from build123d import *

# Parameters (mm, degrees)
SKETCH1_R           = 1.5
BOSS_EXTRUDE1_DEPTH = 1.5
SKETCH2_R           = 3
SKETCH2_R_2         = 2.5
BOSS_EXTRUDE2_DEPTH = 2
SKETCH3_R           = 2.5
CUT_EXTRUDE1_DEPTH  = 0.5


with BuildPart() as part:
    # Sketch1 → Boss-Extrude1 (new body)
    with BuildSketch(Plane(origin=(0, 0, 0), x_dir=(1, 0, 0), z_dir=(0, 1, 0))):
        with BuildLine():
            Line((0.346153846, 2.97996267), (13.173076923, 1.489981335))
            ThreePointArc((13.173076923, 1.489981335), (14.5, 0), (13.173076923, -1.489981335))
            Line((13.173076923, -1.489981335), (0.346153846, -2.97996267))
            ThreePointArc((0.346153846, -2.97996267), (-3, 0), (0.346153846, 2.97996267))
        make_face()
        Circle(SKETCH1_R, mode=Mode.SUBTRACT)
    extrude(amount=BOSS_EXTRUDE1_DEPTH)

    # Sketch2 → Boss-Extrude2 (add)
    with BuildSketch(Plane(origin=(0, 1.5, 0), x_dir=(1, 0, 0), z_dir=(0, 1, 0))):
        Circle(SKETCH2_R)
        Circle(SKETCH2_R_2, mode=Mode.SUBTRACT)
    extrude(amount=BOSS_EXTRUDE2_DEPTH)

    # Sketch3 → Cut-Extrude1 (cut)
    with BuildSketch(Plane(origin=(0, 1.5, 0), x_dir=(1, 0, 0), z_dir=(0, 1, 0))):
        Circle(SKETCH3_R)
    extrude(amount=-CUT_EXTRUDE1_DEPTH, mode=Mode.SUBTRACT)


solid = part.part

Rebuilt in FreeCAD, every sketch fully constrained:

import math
import FreeCAD as App
import Part
import Sketcher
from FreeCAD import Vector

doc = App.newDocument("Part")
params = doc.addObject("Spreadsheet::Sheet", "Params")
for row, (alias, value) in enumerate([
    ("sketch1_diameter", "3 mm"),
    ("sketch1_radius", "3 mm"),
    ("pad1_length", "1.5 mm"),
    ("sketch2_diameter", "6 mm"),
    ("sketch2_diameter2", "5 mm"),
    ("pad2_length", "2 mm"),
    ("sketch3_diameter", "5 mm"),
    ("pocket1_length", "0.5 mm"),
], start=1):
    params.set(f"A{row}", alias)
    params.set(f"B{row}", "=" + value)
    params.setAlias(f"B{row}", alias)

body = doc.addObject("PartDesign::Body", "Body")

# Sketch on XZ plane
sketch1 = doc.addObject("Sketcher::SketchObject", "Sketch")
body.addObject(sketch1)
sketch1.AttachmentSupport = (doc.XZ_Plane, [""])
sketch1.MapMode = "FlatFace"
sketch1.addGeometry(Part.LineSegment(Vector(13.2, -1.5, 0), Vector(0.3, -3, 0)), False)
sketch1.addGeometry(Part.ArcOfCircle(Part.Circle(Vector(0, 0, 0), Vector(0, 0, 1), 3), math.radians(83), math.radians(277)), False)
sketch1.addGeometry(Part.LineSegment(Vector(0.3, 3, 0), Vector(13.2, 1.5, 0)), False)
sketch1.addGeometry(Part.ArcOfCircle(Part.Circle(Vector(13, 0, 0), Vector(0, 0, 1), 1.5), math.radians(-83), math.radians(83)), False)
sketch1.addGeometry(Part.Circle(Vector(0, 0, 0), Vector(0, 0, 1), 1.5), False)
sketch1.addConstraint(Sketcher.Constraint("Tangent", 0, 2, 1, 2))
sketch1.addConstraint(Sketcher.Constraint("Tangent", 1, 1, 2, 1))
sketch1.addConstraint(Sketcher.Constraint("Tangent", 2, 2, 3, 2))
sketch1.addConstraint(Sketcher.Constraint("Tangent", 3, 1, 0, 1))
sketch1.addConstraint(Sketcher.Constraint("Coincident", 1, 3, -1, 1))
sketch1.addConstraint(Sketcher.Constraint("Coincident", 4, 3, -1, 1))
sketch1.addConstraint(Sketcher.Constraint("Equal", 3, 4))
sketch1.addConstraint(Sketcher.Constraint("PointOnObject", 3, 3, -1))
sketch1.addConstraint(Sketcher.Constraint("Diameter", 4, 3.0))
sketch1.addConstraint(Sketcher.Constraint("Radius", 1, 3.0))
sketch1.addConstraint(Sketcher.Constraint("DistanceX", -1, 1, 3, 3, 13.0))
sketch1.setExpression("Constraints[8]", "Params.sketch1_diameter")
sketch1.setExpression("Constraints[9]", "Params.sketch1_radius")
pad1 = doc.addObject("PartDesign::Pad", "Pad")
body.addObject(pad1)
pad1.Profile = sketch1
pad1.setExpression("Length", "Params.pad1_length")
pad1.Reversed = True

# Sketch on XZ plane
sketch2 = doc.addObject("Sketcher::SketchObject", "Sketch001")
body.addObject(sketch2)
sketch2.AttachmentSupport = (doc.XZ_Plane, [""])
sketch2.MapMode = "FlatFace"
sketch2.AttachmentOffset = App.Placement(Vector(0, 0, -1.5), App.Rotation())
sketch2.addGeometry(Part.Circle(Vector(0, 0, 0), Vector(0, 0, 1), 3), False)
sketch2.addGeometry(Part.Circle(Vector(0, 0, 0), Vector(0, 0, 1), 2.5), False)
sketch2.addConstraint(Sketcher.Constraint("Coincident", 0, 3, -1, 1))
sketch2.addConstraint(Sketcher.Constraint("Coincident", 1, 3, -1, 1))
sketch2.addConstraint(Sketcher.Constraint("Diameter", 0, 6.0))
sketch2.addConstraint(Sketcher.Constraint("Diameter", 1, 5.0))
sketch2.setExpression("Constraints[2]", "Params.sketch2_diameter")
sketch2.setExpression("Constraints[3]", "Params.sketch2_diameter2")
pad2 = doc.addObject("PartDesign::Pad", "Pad001")
body.addObject(pad2)
pad2.Profile = sketch2
pad2.setExpression("Length", "Params.pad2_length")
pad2.Reversed = True

# Sketch on XZ plane
sketch3 = doc.addObject("Sketcher::SketchObject", "Sketch002")
body.addObject(sketch3)
sketch3.AttachmentSupport = (doc.XZ_Plane, [""])
sketch3.MapMode = "FlatFace"
sketch3.AttachmentOffset = App.Placement(Vector(0, 0, -1.5), App.Rotation())
sketch3.addGeometry(Part.Circle(Vector(0, 0, 0), Vector(0, 0, 1), 2.5), False)
sketch3.addConstraint(Sketcher.Constraint("Coincident", 0, 3, -1, 1))
sketch3.addConstraint(Sketcher.Constraint("Diameter", 0, 5.0))
sketch3.setExpression("Constraints[1]", "Params.sketch3_diameter")
pocket1 = doc.addObject("PartDesign::Pocket", "Pocket")
body.addObject(pocket1)
pocket1.Profile = sketch3
pocket1.setExpression("Length", "Params.pocket1_length")
pocket1.Reversed = True

doc.recompute()
